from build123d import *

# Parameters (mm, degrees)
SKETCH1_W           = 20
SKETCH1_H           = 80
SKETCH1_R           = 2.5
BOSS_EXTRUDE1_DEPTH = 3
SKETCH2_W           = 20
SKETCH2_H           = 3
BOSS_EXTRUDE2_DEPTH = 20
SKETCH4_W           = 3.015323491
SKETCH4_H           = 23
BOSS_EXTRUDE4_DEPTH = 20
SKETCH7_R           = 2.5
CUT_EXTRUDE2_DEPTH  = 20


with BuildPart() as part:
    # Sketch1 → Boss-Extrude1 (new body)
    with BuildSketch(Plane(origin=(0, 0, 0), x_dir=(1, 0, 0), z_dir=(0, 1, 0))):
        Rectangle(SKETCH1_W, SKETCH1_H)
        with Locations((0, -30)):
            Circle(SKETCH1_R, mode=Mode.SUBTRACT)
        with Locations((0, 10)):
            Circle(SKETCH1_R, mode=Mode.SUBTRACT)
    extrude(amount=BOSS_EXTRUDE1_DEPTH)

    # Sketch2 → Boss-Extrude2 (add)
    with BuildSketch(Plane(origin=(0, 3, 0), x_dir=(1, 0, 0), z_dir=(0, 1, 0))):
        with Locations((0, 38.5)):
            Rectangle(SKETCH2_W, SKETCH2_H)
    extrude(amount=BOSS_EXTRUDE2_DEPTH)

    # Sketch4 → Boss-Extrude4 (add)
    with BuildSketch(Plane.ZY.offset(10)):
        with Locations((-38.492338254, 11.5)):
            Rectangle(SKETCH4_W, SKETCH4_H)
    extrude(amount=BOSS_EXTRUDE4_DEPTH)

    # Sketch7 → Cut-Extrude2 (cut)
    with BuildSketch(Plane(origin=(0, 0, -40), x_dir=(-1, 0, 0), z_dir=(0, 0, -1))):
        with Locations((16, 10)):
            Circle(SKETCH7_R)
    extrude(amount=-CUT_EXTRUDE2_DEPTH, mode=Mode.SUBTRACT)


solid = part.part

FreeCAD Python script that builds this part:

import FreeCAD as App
import Part
import Sketcher
Q = App.Units.Quantity

doc = App.newDocument("Part")
body = doc.addObject("PartDesign::Body", "Body")

sketch1 = body.newObject("Sketcher::SketchObject", "Sketch")
sketch1.AttachmentSupport = (doc.getObject("XZ_Plane"), [""])
sketch1.MapMode = "FlatFace"
sketch1.addGeometry([
    Part.LineSegment(App.Vector(-10, -40, 0), App.Vector(-10, 40, 0)),
    Part.LineSegment(App.Vector(-10, 40, 0), App.Vector(10, 40, 0)),
    Part.LineSegment(App.Vector(10, 40, 0), App.Vector(10, -40, 0)),
    Part.LineSegment(App.Vector(10, -40, 0), App.Vector(-10, -40, 0)),
    Part.Circle(App.Vector(0, 30, 0), App.Vector(0, 0, 1), 2.5),
    Part.Circle(App.Vector(0, -10, 0), App.Vector(0, 0, 1), 2.5),
], False)
sketch1.addConstraint([
    Sketcher.Constraint("Coincident", 0, 2, 1, 1),
    Sketcher.Constraint("Coincident", 1, 2, 2, 1),
    Sketcher.Constraint("Coincident", 2, 2, 3, 1),
    Sketcher.Constraint("Coincident", 3, 2, 0, 1),
    Sketcher.Constraint("Vertical", 0),
    Sketcher.Constraint("Horizontal", 1),
    Sketcher.Constraint("Vertical", 2),
    Sketcher.Constraint("Horizontal", 3),
    Sketcher.Constraint("Equal", 4, 5),
    Sketcher.Constraint("Symmetric", 0, 2, 2, 2, -1, 1),
    Sketcher.Constraint("PointOnObject", 4, 3, -2),
    Sketcher.Constraint("PointOnObject", 5, 3, -2),
    Sketcher.Constraint("Diameter", 4, Q("5 mm")),
    Sketcher.Constraint("DistanceX", 1, 1, 1, 2, Q("20 mm")),
    Sketcher.Constraint("DistanceY", 0, 1, 0, 2, Q("80 mm")),
    Sketcher.Constraint("DistanceY", -1, 1, 4, 3, Q("30 mm")),
    Sketcher.Constraint("DistanceY", 5, 3, -1, 1, Q("10 mm")),
])
pad1 = body.newObject("PartDesign::Pad", "Pad")
pad1.Profile = sketch1
pad1.Length = 3
pad1.Reversed = True

sketch2 = body.newObject("Sketcher::SketchObject", "Sketch001")
sketch2.AttachmentSupport = (doc.getObject("XZ_Plane"), [""])
sketch2.MapMode = "FlatFace"
sketch2.AttachmentOffset = App.Placement(App.Vector(0, 0, -3), App.Rotation())
sketch2.addGeometry([
    Part.LineSegment(App.Vector(-10, -40, 0), App.Vector(-10, -37, 0)),
    Part.LineSegment(App.Vector(-10, -37, 0), App.Vector(10, -37, 0)),
    Part.LineSegment(App.Vector(10, -37, 0), App.Vector(10, -40, 0)),
    Part.LineSegment(App.Vector(10, -40, 0), App.Vector(-10, -40, 0)),
], False)
sketch2.addConstraint([
    Sketcher.Constraint("Coincident", 0, 2, 1, 1),
    Sketcher.Constraint("Coincident", 1, 2, 2, 1),
    Sketcher.Constraint("Coincident", 2, 2, 3, 1),
    Sketcher.Constraint("Coincident", 3, 2, 0, 1),
    Sketcher.Constraint("Vertical", 0),
    Sketcher.Constraint("Horizontal", 1),
    Sketcher.Constraint("Vertical", 2),
    Sketcher.Constraint("Horizontal", 3),
    Sketcher.Constraint("DistanceX", 1, 1, 1, 2, Q("20 mm")),
    Sketcher.Constraint("DistanceY", 0, 1, 0, 2, Q("3 mm")),
    Sketcher.Constraint("DistanceX", 0, 2, -1, 1, Q("10 mm")),
    Sketcher.Constraint("DistanceY", 0, 2, -1, 1, Q("37 mm")),
])
pad2 = body.newObject("PartDesign::Pad", "Pad001")
pad2.Profile = sketch2
pad2.Length = 20
pad2.Reversed = True

sketch3 = body.newObject("Sketcher::SketchObject", "Sketch002")
sketch3.AttachmentSupport = (doc.getObject("YZ_Plane"), [""])
sketch3.MapMode = "FlatFace"
sketch3.AttachmentOffset = App.Placement(App.Vector(0, 0, -10), App.Rotation())
sketch3.addGeometry([
    Part.LineSegment(App.Vector(23, -40, 0), App.Vector(0, -40, 0)),
    Part.LineSegment(App.Vector(0, -40, 0), App.Vector(0, -37, 0)),
    Part.LineSegment(App.Vector(0, -37, 0), App.Vector(23, -37, 0)),
    Part.LineSegment(App.Vector(23, -37, 0), App.Vector(23, -40, 0)),
], False)
sketch3.addConstraint([
    Sketcher.Constraint("Coincident", 0, 2, 1, 1),
    Sketcher.Constraint("Coincident", 1, 2, 2, 1),
    Sketcher.Constraint("Coincident", 2, 2, 3, 1),
    Sketcher.Constraint("Coincident", 3, 2, 0, 1),
    Sketcher.Constraint("Horizontal", 0),
    Sketcher.Constraint("Vertical", 1),
    Sketcher.Constraint("Horizontal", 2),
    Sketcher.Constraint("Vertical", 3),
    Sketcher.Constraint("PointOnObject", 0, 2, -2),
    Sketcher.Constraint("DistanceX", 0, 2, 0, 1, Q("23 mm")),
    Sketcher.Constraint("DistanceY", 0, 2, -1, 1, Q("40 mm")),
    Sketcher.Constraint("DistanceY", 1, 1, 1, 2, Q("3.015323 mm")),
])
pad3 = body.newObject("PartDesign::Pad", "Pad002")
pad3.Profile = sketch3
pad3.Length = 20
pad3.Reversed = True

sketch4 = body.newObject("Sketcher::SketchObject", "Sketch003")
sketch4.AttachmentSupport = (doc.getObject("XY_Plane"), [""])
sketch4.MapMode = "FlatFace"
sketch4.AttachmentOffset = App.Placement(App.Vector(0, 0, -40), App.Rotation())
sketch4.addGeometry(Part.Circle(App.Vector(-16, 10, 0), App.Vector(0, 0, 1), 2.5), False)
sketch4.addConstraint([
    Sketcher.Constraint("Diameter", 0, Q("5 mm")),
    Sketcher.Constraint("DistanceX", 0, 3, -1, 1, Q("16 mm")),
    Sketcher.Constraint("DistanceY", -1, 1, 0, 3, Q("10 mm")),
])
pocket1 = body.newObject("PartDesign::Pocket", "Pocket")
pocket1.Profile = sketch4
pocket1.Length = 20
pocket1.Reversed = True

doc.recompute()
